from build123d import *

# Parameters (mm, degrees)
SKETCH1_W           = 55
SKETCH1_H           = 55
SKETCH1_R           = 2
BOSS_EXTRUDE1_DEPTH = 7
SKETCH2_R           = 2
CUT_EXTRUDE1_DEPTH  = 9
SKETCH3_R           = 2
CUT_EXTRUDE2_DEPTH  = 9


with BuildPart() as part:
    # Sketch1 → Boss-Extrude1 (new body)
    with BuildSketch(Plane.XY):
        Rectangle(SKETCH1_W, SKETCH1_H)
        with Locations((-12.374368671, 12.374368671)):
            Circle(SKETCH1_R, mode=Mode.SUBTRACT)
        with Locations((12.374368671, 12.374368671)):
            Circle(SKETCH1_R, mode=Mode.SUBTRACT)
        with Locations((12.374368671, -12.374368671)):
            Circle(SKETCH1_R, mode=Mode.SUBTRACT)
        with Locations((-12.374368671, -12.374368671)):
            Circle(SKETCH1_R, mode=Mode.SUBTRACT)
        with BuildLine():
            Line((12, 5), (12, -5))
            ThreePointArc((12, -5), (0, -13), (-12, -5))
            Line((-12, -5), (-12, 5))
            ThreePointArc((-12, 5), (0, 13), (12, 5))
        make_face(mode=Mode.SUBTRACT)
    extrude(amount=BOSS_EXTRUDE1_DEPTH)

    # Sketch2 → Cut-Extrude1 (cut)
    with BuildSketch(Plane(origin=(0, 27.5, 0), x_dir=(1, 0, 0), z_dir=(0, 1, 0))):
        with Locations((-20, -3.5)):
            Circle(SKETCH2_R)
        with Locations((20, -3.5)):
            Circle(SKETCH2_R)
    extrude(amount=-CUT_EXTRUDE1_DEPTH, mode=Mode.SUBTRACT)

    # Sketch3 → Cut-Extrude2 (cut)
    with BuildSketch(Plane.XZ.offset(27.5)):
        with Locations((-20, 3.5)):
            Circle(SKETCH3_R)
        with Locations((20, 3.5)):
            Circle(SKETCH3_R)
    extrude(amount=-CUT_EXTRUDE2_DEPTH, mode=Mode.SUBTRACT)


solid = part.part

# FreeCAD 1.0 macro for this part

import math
import FreeCAD as App
import Part
import Sketcher
from FreeCAD import Vector

doc = App.newDocument("Part")
body = doc.addObject("PartDesign::Body", "Body")

sketch1 = doc.addObject("Sketcher::SketchObject", "Sketch")
body.addObject(sketch1)
sketch1.AttachmentSupport = (doc.XY_Plane, [""])
sketch1.MapMode = "FlatFace"
sketch1.addGeometry([
    Part.LineSegment(Vector(-27.5, 27.5, 0), Vector(-27.5, -27.5, 0)),
    Part.LineSegment(Vector(-27.5, -27.5, 0), Vector(27.5, -27.5, 0)),
    Part.LineSegment(Vector(27.5, -27.5, 0), Vector(27.5, 27.5, 0)),
    Part.LineSegment(Vector(27.5, 27.5, 0), Vector(-27.5, 27.5, 0)),
    Part.Circle(Vector(-12.374369, -12.374369, 0), Vector(0, 0, 1), 2),
    Part.Circle(Vector(12.374369, -12.374369, 0), Vector(0, 0, 1), 2),
    Part.Circle(Vector(-12.374369, 12.374369, 0), Vector(0, 0, 1), 2),
    Part.ArcOfCircle(Part.Circle(Vector(0, 0, 0), Vector(0, 0, 1), 13), math.radians(22.619865), math.radians(157.380135)),
    Part.LineSegment(Vector(12, 5, 0), Vector(12, -5, 0)),
    Part.ArcOfCircle(Part.Circle(Vector(0, 0, 0), Vector(0, 0, 1), 13), math.radians(-157.380135), math.radians(-22.619865)),
    Part.LineSegment(Vector(-12, -5, 0), Vector(-12, 5, 0)),
    Part.Circle(Vector(12.374369, 12.374369, 0), Vector(0, 0, 1), 2),
], False)
sketch1.addConstraint([
    Sketcher.Constraint("Coincident", 0, 2, 1, 1),
    Sketcher.Constraint("Coincident", 1, 2, 2, 1),
    Sketcher.Constraint("Coincident", 2, 2, 3, 1),
    Sketcher.Constraint("Coincident", 3, 2, 0, 1),
    Sketcher.Constraint("Coincident", 7, 1, 8, 1),
    Sketcher.Constraint("Coincident", 8, 2, 9, 2),
    Sketcher.Constraint("Coincident", 9, 1, 10, 1),
    Sketcher.Constraint("Coincident", 10, 2, 7, 2),
    Sketcher.Constraint("Vertical", 0),
    Sketcher.Constraint("Horizontal", 1),
    Sketcher.Constraint("Vertical", 2),
    Sketcher.Constraint("Horizontal", 3),
    Sketcher.Constraint("Vertical", 8),
    Sketcher.Constraint("Vertical", 10),
    Sketcher.Constraint("Coincident", 7, 3, -1, 1),
    Sketcher.Constraint("Coincident", 9, 3, -1, 1),
    Sketcher.Constraint("Equal", 4, 5),
    Sketcher.Constraint("Equal", 5, 6),
    Sketcher.Constraint("Equal", 7, 9),
    Sketcher.Constraint("Equal", 6, 11),
    Sketcher.Constraint("Symmetric", 5, 3, 6, 3, -1, 1),
    Sketcher.Constraint("Symmetric", 4, 3, 11, 3, -1, 1),
    Sketcher.Constraint("Symmetric", 0, 2, 2, 2, -1, 1),
    Sketcher.Constraint("Symmetric", 4, 3, 5, 3, -2),
    Sketcher.Constraint("Horizontal", 8, 2, 9, 1),
    Sketcher.Constraint("Equal", 3, 0),
    Sketcher.Constraint("Diameter", 4, 4.0),
    Sketcher.Constraint("Radius", 7, 13.0),
    Sketcher.Constraint("DistanceX", 1, 1, 1, 2, 55.0),
    Sketcher.Constraint("DistanceY", 8, 2, 8, 1, 10.0),
    Sketcher.Constraint("DistanceX", 4, 3, -1, 1, 12.374369),
    Sketcher.Constraint("DistanceY", 4, 3, -1, 1, 12.374369),
])
pad1 = doc.addObject("PartDesign::Pad", "Pad")
body.addObject(pad1)
pad1.Profile = sketch1
pad1.Length = 7

sketch2 = doc.addObject("Sketcher::SketchObject", "Sketch001")
body.addObject(sketch2)
sketch2.AttachmentSupport = (doc.XZ_Plane, [""])
sketch2.MapMode = "FlatFace"
sketch2.AttachmentOffset = App.Placement(Vector(0, 0, -27.5), App.Rotation())
sketch2.addGeometry([
    Part.Circle(Vector(-20, 3.5, 0), Vector(0, 0, 1), 2),
    Part.Circle(Vector(20, 3.5, 0), Vector(0, 0, 1), 2),
], False)
sketch2.addConstraint([
    Sketcher.Constraint("Equal", 0, 1),
    Sketcher.Constraint("Symmetric", 0, 3, 1, 3, -2),
    Sketcher.Constraint("Diameter", 0, 4.0),
    Sketcher.Constraint("DistanceX", 0, 3, -1, 1, 20.0),
    Sketcher.Constraint("DistanceY", -1, 1, 0, 3, 3.5),
])
pocket1 = doc.addObject("PartDesign::Pocket", "Pocket")
body.addObject(pocket1)
pocket1.Profile = sketch2
pocket1.Length = 9
pocket1.Reversed = True

sketch3 = doc.addObject("Sketcher::SketchObject", "Sketch002")
body.addObject(sketch3)
sketch3.AttachmentSupport = (doc.XZ_Plane, [""])
sketch3.MapMode = "FlatFace"
sketch3.AttachmentOffset = App.Placement(Vector(0, 0, 27.5), App.Rotation())
sketch3.addGeometry([
    Part.Circle(Vector(-20, 3.5, 0), Vector(0, 0, 1), 2),
    Part.Circle(Vector(20, 3.5, 0), Vector(0, 0, 1), 2),
], False)
sketch3.addConstraint([
    Sketcher.Constraint("Equal", 0, 1),
    Sketcher.Constraint("Symmetric", 0, 3, 1, 3, -2),
    Sketcher.Constraint("Diameter", 0, 4.0),
    Sketcher.Constraint("DistanceX", 0, 3, -1, 1, 20.0),
    Sketcher.Constraint("DistanceY", -1, 1, 0, 3, 3.5),
])
pocket2 = doc.addObject("PartDesign::Pocket", "Pocket001")
body.addObject(pocket2)
pocket2.Profile = sketch3
pocket2.Length = 9

doc.recompute()
